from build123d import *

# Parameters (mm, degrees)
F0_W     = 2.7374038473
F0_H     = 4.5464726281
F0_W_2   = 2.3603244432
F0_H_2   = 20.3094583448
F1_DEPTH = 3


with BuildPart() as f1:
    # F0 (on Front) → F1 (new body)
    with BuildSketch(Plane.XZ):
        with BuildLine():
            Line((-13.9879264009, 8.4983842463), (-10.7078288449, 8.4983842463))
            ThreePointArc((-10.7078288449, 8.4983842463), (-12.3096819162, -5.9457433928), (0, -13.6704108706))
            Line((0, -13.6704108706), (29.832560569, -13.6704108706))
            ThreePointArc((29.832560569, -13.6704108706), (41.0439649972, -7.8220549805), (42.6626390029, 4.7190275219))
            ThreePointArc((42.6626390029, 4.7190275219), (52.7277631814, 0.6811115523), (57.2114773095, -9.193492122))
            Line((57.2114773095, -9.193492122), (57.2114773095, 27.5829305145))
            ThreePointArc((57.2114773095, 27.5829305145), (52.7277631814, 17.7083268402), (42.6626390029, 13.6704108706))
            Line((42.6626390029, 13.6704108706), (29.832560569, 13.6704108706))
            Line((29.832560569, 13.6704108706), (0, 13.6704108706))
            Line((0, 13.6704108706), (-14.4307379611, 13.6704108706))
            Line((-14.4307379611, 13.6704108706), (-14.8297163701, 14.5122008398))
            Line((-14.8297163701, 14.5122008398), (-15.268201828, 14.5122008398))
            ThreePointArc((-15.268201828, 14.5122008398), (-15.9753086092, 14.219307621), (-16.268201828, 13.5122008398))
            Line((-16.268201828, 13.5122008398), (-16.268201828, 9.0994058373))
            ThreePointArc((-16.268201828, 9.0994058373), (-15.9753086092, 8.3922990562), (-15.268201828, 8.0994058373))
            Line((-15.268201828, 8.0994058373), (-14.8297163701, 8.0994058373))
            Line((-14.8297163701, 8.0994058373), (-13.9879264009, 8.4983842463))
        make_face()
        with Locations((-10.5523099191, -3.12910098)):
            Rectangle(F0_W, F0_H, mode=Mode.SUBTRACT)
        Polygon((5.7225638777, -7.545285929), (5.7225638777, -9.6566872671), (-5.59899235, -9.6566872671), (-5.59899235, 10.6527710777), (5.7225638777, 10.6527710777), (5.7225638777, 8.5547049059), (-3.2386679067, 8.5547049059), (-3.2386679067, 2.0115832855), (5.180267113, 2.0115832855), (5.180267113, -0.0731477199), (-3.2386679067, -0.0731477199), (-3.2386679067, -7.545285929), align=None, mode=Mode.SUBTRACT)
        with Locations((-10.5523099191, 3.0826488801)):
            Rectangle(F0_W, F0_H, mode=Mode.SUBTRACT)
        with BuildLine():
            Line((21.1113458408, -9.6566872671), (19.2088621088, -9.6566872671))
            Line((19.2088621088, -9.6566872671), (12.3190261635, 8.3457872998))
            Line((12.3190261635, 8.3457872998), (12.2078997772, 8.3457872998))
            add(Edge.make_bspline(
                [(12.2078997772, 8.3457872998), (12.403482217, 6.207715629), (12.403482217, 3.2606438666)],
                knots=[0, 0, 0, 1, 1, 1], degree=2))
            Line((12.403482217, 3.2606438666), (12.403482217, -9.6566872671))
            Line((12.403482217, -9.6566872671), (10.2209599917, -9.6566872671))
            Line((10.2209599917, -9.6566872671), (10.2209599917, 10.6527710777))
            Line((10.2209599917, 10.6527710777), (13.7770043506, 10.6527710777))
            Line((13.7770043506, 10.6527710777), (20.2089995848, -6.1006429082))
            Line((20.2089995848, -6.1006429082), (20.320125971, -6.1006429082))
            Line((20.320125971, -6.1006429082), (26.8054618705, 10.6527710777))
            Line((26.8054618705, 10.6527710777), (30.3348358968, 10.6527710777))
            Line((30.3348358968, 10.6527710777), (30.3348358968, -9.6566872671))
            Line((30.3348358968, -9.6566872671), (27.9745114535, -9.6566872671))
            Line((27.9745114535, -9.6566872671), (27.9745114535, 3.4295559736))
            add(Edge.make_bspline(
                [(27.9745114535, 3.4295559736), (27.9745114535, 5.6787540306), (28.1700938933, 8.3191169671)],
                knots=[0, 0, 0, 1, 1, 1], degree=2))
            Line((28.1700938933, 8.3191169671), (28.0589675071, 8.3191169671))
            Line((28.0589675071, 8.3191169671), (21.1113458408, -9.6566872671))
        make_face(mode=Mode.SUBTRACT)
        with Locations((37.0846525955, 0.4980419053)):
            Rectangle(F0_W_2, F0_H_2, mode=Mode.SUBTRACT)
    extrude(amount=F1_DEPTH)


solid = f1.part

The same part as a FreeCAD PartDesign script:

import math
import FreeCAD as App
import Part
import Sketcher
from FreeCAD import Vector
Q = App.Units.Quantity

doc = App.newDocument("Part")
body = doc.addObject("PartDesign::Body", "Body")

sketch1 = doc.addObject("Sketcher::SketchObject", "Sketch")
body.addObject(sketch1)
sketch1.AttachmentSupport = (doc.XZ_Plane, [""])
sketch1.MapMode = "FlatFace"
sketch1.addGeometry([
    Part.LineSegment(Vector(-13.987926, 8.498384, 0), Vector(-10.707829, 8.498384, 0)),
    Part.ArcOfCircle(Part.Circle(Vector(0, 0, 0), Vector(0, 0, 1), 13.670411), math.radians(141.562346), math.radians(270)),
    Part.LineSegment(Vector(0, -13.670411, 0), Vector(29.832561, -13.670411, 0)),
    Part.ArcOfCircle(Part.Circle(Vector(29.832561, 0, 0), Vector(0, 0, 1), 13.670411), math.radians(-90), math.radians(20.194013)),
    Part.ArcOfCircle(Part.Circle(Vector(42.662639, -9.844362, 0), Vector(0, 0, 1), 14.56339), math.radians(2.561529), math.radians(90)),
    Part.LineSegment(Vector(57.211477, -9.193492, 0), Vector(57.211477, 27.582931, 0)),
    Part.ArcOfCircle(Part.Circle(Vector(42.662639, 28.233801, 0), Vector(0, 0, 1), 14.56339), math.radians(-90), math.radians(-2.561529)),
    Part.LineSegment(Vector(42.662639, 13.670411, 0), Vector(-14.430738, 13.670411, 0)),
    Part.LineSegment(Vector(-14.430738, 13.670411, 0), Vector(-14.829716, 14.512201, 0)),
    Part.LineSegment(Vector(-14.829716, 14.512201, 0), Vector(-15.268202, 14.512201, 0)),
    Part.ArcOfCircle(Part.Circle(Vector(-15.268202, 13.512201, 0), Vector(0, 0, 1), 1), math.radians(90), math.radians(180)),
    Part.LineSegment(Vector(-16.268202, 13.512201, 0), Vector(-16.268202, 9.099406, 0)),
    Part.ArcOfCircle(Part.Circle(Vector(-15.268202, 9.099406, 0), Vector(0, 0, 1), 1), math.radians(180), math.radians(270)),
    Part.LineSegment(Vector(-15.268202, 8.099406, 0), Vector(-14.829716, 8.099406, 0)),
    Part.LineSegment(Vector(-14.829716, 8.099406, 0), Vector(-13.987926, 8.498384, 0)),
    Part.LineSegment(Vector(-9.183608, -5.402337, 0), Vector(-11.921012, -5.402337, 0)),
    Part.LineSegment(Vector(-11.921012, -5.402337, 0), Vector(-11.921012, -0.855865, 0)),
    Part.LineSegment(Vector(-11.921012, -0.855865, 0), Vector(-9.183608, -0.855865, 0)),
    Part.LineSegment(Vector(-9.183608, -0.855865, 0), Vector(-9.183608, -5.402337, 0)),
    Part.LineSegment(Vector(38.264815, -9.656687, 0), Vector(35.90449, -9.656687, 0)),
    Part.LineSegment(Vector(35.90449, -9.656687, 0), Vector(35.90449, 10.652771, 0)),
    Part.LineSegment(Vector(35.90449, 10.652771, 0), Vector(38.264815, 10.652771, 0)),
    Part.LineSegment(Vector(38.264815, 10.652771, 0), Vector(38.264815, -9.656687, 0)),
    Part.LineSegment(Vector(-3.238668, -7.545286, 0), Vector(5.722564, -7.545286, 0)),
    Part.LineSegment(Vector(5.722564, -7.545286, 0), Vector(5.722564, -9.656687, 0)),
    Part.LineSegment(Vector(5.722564, -9.656687, 0), Vector(-5.598992, -9.656687, 0)),
    Part.LineSegment(Vector(-5.598992, -9.656687, 0), Vector(-5.598992, 10.652771, 0)),
    Part.LineSegment(Vector(-5.598992, 10.652771, 0), Vector(5.722564, 10.652771, 0)),
    Part.LineSegment(Vector(5.722564, 10.652771, 0), Vector(5.722564, 8.554705, 0)),
    Part.LineSegment(Vector(5.722564, 8.554705, 0), Vector(-3.238668, 8.554705, 0)),
    Part.LineSegment(Vector(-3.238668, 8.554705, 0), Vector(-3.238668, 2.011583, 0)),
    Part.LineSegment(Vector(-3.238668, 2.011583, 0), Vector(5.180267, 2.011583, 0)),
    Part.LineSegment(Vector(5.180267, 2.011583, 0), Vector(5.180267, -0.073148, 0)),
    Part.LineSegment(Vector(5.180267, -0.073148, 0), Vector(-3.238668, -0.073148, 0)),
    Part.LineSegment(Vector(-3.238668, -0.073148, 0), Vector(-3.238668, -7.545286, 0)),
    Part.LineSegment(Vector(-9.183608, 0.809413, 0), Vector(-11.921012, 0.809413, 0)),
    Part.LineSegment(Vector(-11.921012, 0.809413, 0), Vector(-11.921012, 5.355885, 0)),
    Part.LineSegment(Vector(-11.921012, 5.355885, 0), Vector(-9.183608, 5.355885, 0)),
    Part.LineSegment(Vector(-9.183608, 5.355885, 0), Vector(-9.183608, 0.809413, 0)),
    Part.LineSegment(Vector(28.058968, 8.319117, 0), Vector(21.111346, -9.656687, 0)),
    Part.LineSegment(Vector(21.111346, -9.656687, 0), Vector(19.208862, -9.656687, 0)),
    Part.LineSegment(Vector(19.208862, -9.656687, 0), Vector(12.319026, 8.345787, 0)),
    Part.LineSegment(Vector(12.319026, 8.345787, 0), Vector(12.2079, 8.345787, 0)),
    Part.BSplineCurve([Vector(12.2079, 8.345787, 0), Vector(12.403482, 6.207716, 0), Vector(12.403482, 3.260644, 0)], [3, 3], [0, 1], False, 2, [1, 1, 1], False),
    Part.LineSegment(Vector(12.403482, 3.260644, 0), Vector(12.403482, -9.656687, 0)),
    Part.LineSegment(Vector(12.403482, -9.656687, 0), Vector(10.22096, -9.656687, 0)),
    Part.LineSegment(Vector(10.22096, -9.656687, 0), Vector(10.22096, 10.652771, 0)),
    Part.LineSegment(Vector(10.22096, 10.652771, 0), Vector(13.777004, 10.652771, 0)),
    Part.LineSegment(Vector(13.777004, 10.652771, 0), Vector(20.209, -6.100643, 0)),
    Part.LineSegment(Vector(20.209, -6.100643, 0), Vector(20.320126, -6.100643, 0)),
    Part.LineSegment(Vector(20.320126, -6.100643, 0), Vector(26.805462, 10.652771, 0)),
    Part.LineSegment(Vector(26.805462, 10.652771, 0), Vector(30.334836, 10.652771, 0)),
    Part.LineSegment(Vector(30.334836, 10.652771, 0), Vector(30.334836, -9.656687, 0)),
    Part.LineSegment(Vector(30.334836, -9.656687, 0), Vector(27.974511, -9.656687, 0)),
    Part.LineSegment(Vector(27.974511, -9.656687, 0), Vector(27.974511, 3.429556, 0)),
    Part.BSplineCurve([Vector(27.974511, 3.429556, 0), Vector(27.974511, 5.678754, 0), Vector(28.170094, 8.319117, 0)], [3, 3], [0, 1], False, 2, [1, 1, 1], False),
    Part.LineSegment(Vector(28.170094, 8.319117, 0), Vector(28.058968, 8.319117, 0)),
], False)
sketch1.addConstraint([
    Sketcher.Constraint("Block", 43),
    Sketcher.Constraint("Block", 55),
    Sketcher.Constraint("Coincident", 0, 2, 1, 1),
    Sketcher.Constraint("Tangent", 1, 2, 2, 1),
    Sketcher.Constraint("Tangent", 2, 2, 3, 1),
    Sketcher.Constraint("Coincident", 3, 2, 4, 2),
    Sketcher.Constraint("Coincident", 4, 1, 5, 1),
    Sketcher.Constraint("Coincident", 5, 2, 6, 2),
    Sketcher.Constraint("Tangent", 6, 1, 7, 1),
    Sketcher.Constraint("Coincident", 7, 2, 8, 1),
    Sketcher.Constraint("Coincident", 8, 2, 9, 1),
    Sketcher.Constraint("Tangent", 9, 2, 10, 1),
    Sketcher.Constraint("Tangent", 10, 2, 11, 1),
    Sketcher.Constraint("Tangent", 11, 2, 12, 1),
    Sketcher.Constraint("Tangent", 12, 2, 13, 1),
    Sketcher.Constraint("Coincident", 13, 2, 14, 1),
    Sketcher.Constraint("Coincident", 14, 2, 0, 1),
    Sketcher.Constraint("Coincident", 15, 2, 16, 1),
    Sketcher.Constraint("Coincident", 16, 2, 17, 1),
    Sketcher.Constraint("Coincident", 17, 2, 18, 1),
    Sketcher.Constraint("Coincident", 18, 2, 15, 1),
    Sketcher.Constraint("Coincident", 19, 2, 20, 1),
    Sketcher.Constraint("Coincident", 20, 2, 21, 1),
    Sketcher.Constraint("Coincident", 21, 2, 22, 1),
    Sketcher.Constraint("Coincident", 22, 2, 19, 1),
    Sketcher.Constraint("Coincident", 23, 2, 24, 1),
    Sketcher.Constraint("Coincident", 24, 2, 25, 1),
    Sketcher.Constraint("Coincident", 25, 2, 26, 1),
    Sketcher.Constraint("Coincident", 26, 2, 27, 1),
    Sketcher.Constraint("Coincident", 27, 2, 28, 1),
    Sketcher.Constraint("Coincident", 28, 2, 29, 1),
    Sketcher.Constraint("Coincident", 29, 2, 30, 1),
    Sketcher.Constraint("Coincident", 30, 2, 31, 1),
    Sketcher.Constraint("Coincident", 31, 2, 32, 1),
    Sketcher.Constraint("Coincident", 32, 2, 33, 1),
    Sketcher.Constraint("Coincident", 33, 2, 34, 1),
    Sketcher.Constraint("Coincident", 34, 2, 23, 1),
    Sketcher.Constraint("Coincident", 35, 2, 36, 1),
    Sketcher.Constraint("Coincident", 36, 2, 37, 1),
    Sketcher.Constraint("Coincident", 37, 2, 38, 1),
    Sketcher.Constraint("Coincident", 38, 2, 35, 1),
    Sketcher.Constraint("Coincident", 39, 2, 40, 1),
    Sketcher.Constraint("Coincident", 40, 2, 41, 1),
    Sketcher.Constraint("Coincident", 41, 2, 42, 1),
    Sketcher.Constraint("Coincident", 42, 2, 43, 1),
    Sketcher.Constraint("Coincident", 43, 2, 44, 1),
    Sketcher.Constraint("Coincident", 44, 2, 45, 1),
    Sketcher.Constraint("Coincident", 45, 2, 46, 1),
    Sketcher.Constraint("Coincident", 46, 2, 47, 1),
    Sketcher.Constraint("Coincident", 47, 2, 48, 1),
    Sketcher.Constraint("Coincident", 48, 2, 49, 1),
    Sketcher.Constraint("Coincident", 49, 2, 50, 1),
    Sketcher.Constraint("Coincident", 50, 2, 51, 1),
    Sketcher.Constraint("Coincident", 51, 2, 52, 1),
    Sketcher.Constraint("Coincident", 52, 2, 53, 1),
    Sketcher.Constraint("Coincident", 53, 2, 54, 1),
    Sketcher.Constraint("Coincident", 54, 2, 55, 1),
    Sketcher.Constraint("Coincident", 55, 2, 56, 1),
    Sketcher.Constraint("Coincident", 56, 2, 39, 1),
    Sketcher.Constraint("Horizontal", 0),
    Sketcher.Constraint("Horizontal", 2),
    Sketcher.Constraint("Vertical", 5),
    Sketcher.Constraint("Horizontal", 7),
    Sketcher.Constraint("Horizontal", 9),
    Sketcher.Constraint("Vertical", 11),
    Sketcher.Constraint("Horizontal", 13),
    Sketcher.Constraint("Horizontal", 15),
    Sketcher.Constraint("Vertical", 16),
    Sketcher.Constraint("Horizontal", 17),
    Sketcher.Constraint("Vertical", 18),
    Sketcher.Constraint("Horizontal", 19),
    Sketcher.Constraint("Vertical", 20),
    Sketcher.Constraint("Horizontal", 21),
    Sketcher.Constraint("Vertical", 22),
    Sketcher.Constraint("Horizontal", 23),
    Sketcher.Constraint("Vertical", 24),
    Sketcher.Constraint("Horizontal", 25),
    Sketcher.Constraint("Vertical", 26),
    Sketcher.Constraint("Horizontal", 27),
    Sketcher.Constraint("Vertical", 28),
    Sketcher.Constraint("Horizontal", 29),
    Sketcher.Constraint("Vertical", 30),
    Sketcher.Constraint("Horizontal", 31),
    Sketcher.Constraint("Vertical", 32),
    Sketcher.Constraint("Horizontal", 33),
    Sketcher.Constraint("Vertical", 34),
    Sketcher.Constraint("Horizontal", 35),
    Sketcher.Constraint("Vertical", 36),
    Sketcher.Constraint("Horizontal", 37),
    Sketcher.Constraint("Vertical", 38),
    Sketcher.Constraint("Horizontal", 40),
    Sketcher.Constraint("Horizontal", 42),
    Sketcher.Constraint("Vertical", 44),
    Sketcher.Constraint("Horizontal", 45),
    Sketcher.Constraint("Vertical", 46),
    Sketcher.Constraint("Horizontal", 47),
    Sketcher.Constraint("Horizontal", 49),
    Sketcher.Constraint("Horizontal", 51),
    Sketcher.Constraint("Vertical", 52),
    Sketcher.Constraint("Horizontal", 53),
    Sketcher.Constraint("Vertical", 54),
    Sketcher.Constraint("Horizontal", 56),
    Sketcher.Constraint("Coincident", 1, 3, -1, 1),
    Sketcher.Constraint("Equal", 1, 3),
    Sketcher.Constraint("Equal", 4, 6),
    Sketcher.Constraint("Equal", 10, 12),
    Sketcher.Constraint("Perpendicular", 8, 14),
    Sketcher.Constraint("Horizontal", 22, 2, 24, 2),
    Sketcher.Constraint("Horizontal", 21, 2, 26, 2),
    Sketcher.Constraint("Horizontal", 25, 2, 39, 2),
    Sketcher.Constraint("Horizontal", 40, 2, 44, 2),
    Sketcher.Constraint("Horizontal", 27, 2, 46, 2),
    Sketcher.Constraint("Horizontal", 47, 2, 50, 2),
    Sketcher.Constraint("Horizontal", 45, 2, 52, 2),
    Sketcher.Constraint("Vertical", 4, 3, 6, 3),
    Sketcher.Constraint("Vertical", 6, 3, 3, 2),
    Sketcher.Constraint("Vertical", 8, 2, 13, 2),
    Sketcher.Constraint("Vertical", 24, 2, 27, 2),
    Sketcher.Constraint("Vertical", 30, 2, 33, 2),
    Sketcher.Constraint("Vertical", 16, 2, 35, 2),
    Sketcher.Constraint("Vertical", 18, 2, 37, 2),
    Sketcher.Constraint("Equal", 42, 49),
    Sketcher.Constraint("Equal", 21, 53),
    Sketcher.Constraint("Equal", 49, 56),
    Sketcher.Constraint("Equal", 18, 36),
    Sketcher.Constraint("Equal", 8, 14),
    Sketcher.Constraint("Radius", 10, Q("1 mm")),
    Sketcher.Constraint("Radius", 1, Q("13.670411 mm")),
    Sketcher.Constraint("Radius", 4, Q("14.56339 mm")),
    Sketcher.Constraint("DistanceY", 24, 2, 24, 1, Q("2.111401 mm")),
    Sketcher.Constraint("DistanceX", -1, 1, 48, 2, Q("20.209 mm")),
    Sketcher.Constraint("DistanceX", 2, 1, 2, 2, Q("29.832561 mm")),
    Sketcher.Constraint("DistanceX", 23, 1, 23, 2, Q("8.961232 mm")),
    Sketcher.Constraint("DistanceY", 20, 1, 20, 2, Q("20.309458 mm")),
    Sketcher.Constraint("DistanceY", 30, 2, 30, 1, Q("6.543122 mm")),
    Sketcher.Constraint("DistanceY", 32, 2, 32, 1, Q("2.084731 mm")),
    Sketcher.Constraint("DistanceY", 34, 2, 34, 1, Q("7.472138 mm")),
    Sketcher.Constraint("DistanceY", 44, 2, 44, 1, Q("12.917331 mm")),
    Sketcher.Constraint("DistanceY", -1, 1, 6, 3, Q("28.233801 mm")),
    Sketcher.Constraint("DistanceX", 10, 3, -1, 1, Q("15.268202 mm")),
    Sketcher.Constraint("DistanceY", -1, 1, 10, 3, Q("13.512201 mm")),
    Sketcher.Constraint("Distance", 48, Q("17.94568 mm")),
    Sketcher.Constraint("DistanceX", 0, 1, 0, 2, Q("3.280098 mm")),
    Sketcher.Constraint("DistanceX", 7, 2, 7, 1, Q("57.093377 mm")),
    Sketcher.Constraint("DistanceX", 9, 2, 9, 1, Q("0.438485 mm")),
    Sketcher.Constraint("DistanceX", 15, 2, 15, 1, Q("2.737404 mm")),
    Sketcher.Constraint("DistanceX", 19, 2, 19, 1, Q("2.360324 mm")),
    Sketcher.Constraint("DistanceX", 25, 2, 25, 1, Q("11.321556 mm")),
    Sketcher.Constraint("DistanceX", 31, 1, 31, 2, Q("8.418935 mm")),
    Sketcher.Constraint("DistanceX", 40, 2, 40, 1, Q("1.902484 mm")),
    Sketcher.Constraint("DistanceX", 42, 2, 42, 1, Q("0.111126 mm")),
    Sketcher.Constraint("DistanceX", 45, 2, 45, 1, Q("2.182522 mm")),
    Sketcher.Constraint("DistanceX", 47, 1, 47, 2, Q("3.556044 mm")),
    Sketcher.Constraint("DistanceX", 51, 1, 51, 2, Q("3.529374 mm")),
    Sketcher.Constraint("DistanceY", 5, 1, 5, 2, Q("36.776423 mm")),
    Sketcher.Constraint("DistanceY", 11, 2, 11, 1, Q("4.412795 mm")),
    Sketcher.Constraint("DistanceY", 16, 1, 16, 2, Q("4.546473 mm")),
    Sketcher.Constraint("DistanceX", 15, 2, -1, 1, Q("11.921012 mm")),
    Sketcher.Constraint("DistanceX", -1, 1, 19, 2, Q("35.90449 mm")),
    Sketcher.Constraint("Distance", 39, Q("19.271715 mm")),
    Sketcher.Constraint("DistanceY", 15, 2, -1, 1, Q("5.402337 mm")),
    Sketcher.Constraint("DistanceX", -1, 1, 23, 2, Q("5.722564 mm")),
    Sketcher.Constraint("DistanceY", -1, 1, 35, 2, Q("0.809413 mm")),
])
pad1 = doc.addObject("PartDesign::Pad", "Pad")
body.addObject(pad1)
pad1.Profile = sketch1
pad1.Length = 3

doc.recompute()
